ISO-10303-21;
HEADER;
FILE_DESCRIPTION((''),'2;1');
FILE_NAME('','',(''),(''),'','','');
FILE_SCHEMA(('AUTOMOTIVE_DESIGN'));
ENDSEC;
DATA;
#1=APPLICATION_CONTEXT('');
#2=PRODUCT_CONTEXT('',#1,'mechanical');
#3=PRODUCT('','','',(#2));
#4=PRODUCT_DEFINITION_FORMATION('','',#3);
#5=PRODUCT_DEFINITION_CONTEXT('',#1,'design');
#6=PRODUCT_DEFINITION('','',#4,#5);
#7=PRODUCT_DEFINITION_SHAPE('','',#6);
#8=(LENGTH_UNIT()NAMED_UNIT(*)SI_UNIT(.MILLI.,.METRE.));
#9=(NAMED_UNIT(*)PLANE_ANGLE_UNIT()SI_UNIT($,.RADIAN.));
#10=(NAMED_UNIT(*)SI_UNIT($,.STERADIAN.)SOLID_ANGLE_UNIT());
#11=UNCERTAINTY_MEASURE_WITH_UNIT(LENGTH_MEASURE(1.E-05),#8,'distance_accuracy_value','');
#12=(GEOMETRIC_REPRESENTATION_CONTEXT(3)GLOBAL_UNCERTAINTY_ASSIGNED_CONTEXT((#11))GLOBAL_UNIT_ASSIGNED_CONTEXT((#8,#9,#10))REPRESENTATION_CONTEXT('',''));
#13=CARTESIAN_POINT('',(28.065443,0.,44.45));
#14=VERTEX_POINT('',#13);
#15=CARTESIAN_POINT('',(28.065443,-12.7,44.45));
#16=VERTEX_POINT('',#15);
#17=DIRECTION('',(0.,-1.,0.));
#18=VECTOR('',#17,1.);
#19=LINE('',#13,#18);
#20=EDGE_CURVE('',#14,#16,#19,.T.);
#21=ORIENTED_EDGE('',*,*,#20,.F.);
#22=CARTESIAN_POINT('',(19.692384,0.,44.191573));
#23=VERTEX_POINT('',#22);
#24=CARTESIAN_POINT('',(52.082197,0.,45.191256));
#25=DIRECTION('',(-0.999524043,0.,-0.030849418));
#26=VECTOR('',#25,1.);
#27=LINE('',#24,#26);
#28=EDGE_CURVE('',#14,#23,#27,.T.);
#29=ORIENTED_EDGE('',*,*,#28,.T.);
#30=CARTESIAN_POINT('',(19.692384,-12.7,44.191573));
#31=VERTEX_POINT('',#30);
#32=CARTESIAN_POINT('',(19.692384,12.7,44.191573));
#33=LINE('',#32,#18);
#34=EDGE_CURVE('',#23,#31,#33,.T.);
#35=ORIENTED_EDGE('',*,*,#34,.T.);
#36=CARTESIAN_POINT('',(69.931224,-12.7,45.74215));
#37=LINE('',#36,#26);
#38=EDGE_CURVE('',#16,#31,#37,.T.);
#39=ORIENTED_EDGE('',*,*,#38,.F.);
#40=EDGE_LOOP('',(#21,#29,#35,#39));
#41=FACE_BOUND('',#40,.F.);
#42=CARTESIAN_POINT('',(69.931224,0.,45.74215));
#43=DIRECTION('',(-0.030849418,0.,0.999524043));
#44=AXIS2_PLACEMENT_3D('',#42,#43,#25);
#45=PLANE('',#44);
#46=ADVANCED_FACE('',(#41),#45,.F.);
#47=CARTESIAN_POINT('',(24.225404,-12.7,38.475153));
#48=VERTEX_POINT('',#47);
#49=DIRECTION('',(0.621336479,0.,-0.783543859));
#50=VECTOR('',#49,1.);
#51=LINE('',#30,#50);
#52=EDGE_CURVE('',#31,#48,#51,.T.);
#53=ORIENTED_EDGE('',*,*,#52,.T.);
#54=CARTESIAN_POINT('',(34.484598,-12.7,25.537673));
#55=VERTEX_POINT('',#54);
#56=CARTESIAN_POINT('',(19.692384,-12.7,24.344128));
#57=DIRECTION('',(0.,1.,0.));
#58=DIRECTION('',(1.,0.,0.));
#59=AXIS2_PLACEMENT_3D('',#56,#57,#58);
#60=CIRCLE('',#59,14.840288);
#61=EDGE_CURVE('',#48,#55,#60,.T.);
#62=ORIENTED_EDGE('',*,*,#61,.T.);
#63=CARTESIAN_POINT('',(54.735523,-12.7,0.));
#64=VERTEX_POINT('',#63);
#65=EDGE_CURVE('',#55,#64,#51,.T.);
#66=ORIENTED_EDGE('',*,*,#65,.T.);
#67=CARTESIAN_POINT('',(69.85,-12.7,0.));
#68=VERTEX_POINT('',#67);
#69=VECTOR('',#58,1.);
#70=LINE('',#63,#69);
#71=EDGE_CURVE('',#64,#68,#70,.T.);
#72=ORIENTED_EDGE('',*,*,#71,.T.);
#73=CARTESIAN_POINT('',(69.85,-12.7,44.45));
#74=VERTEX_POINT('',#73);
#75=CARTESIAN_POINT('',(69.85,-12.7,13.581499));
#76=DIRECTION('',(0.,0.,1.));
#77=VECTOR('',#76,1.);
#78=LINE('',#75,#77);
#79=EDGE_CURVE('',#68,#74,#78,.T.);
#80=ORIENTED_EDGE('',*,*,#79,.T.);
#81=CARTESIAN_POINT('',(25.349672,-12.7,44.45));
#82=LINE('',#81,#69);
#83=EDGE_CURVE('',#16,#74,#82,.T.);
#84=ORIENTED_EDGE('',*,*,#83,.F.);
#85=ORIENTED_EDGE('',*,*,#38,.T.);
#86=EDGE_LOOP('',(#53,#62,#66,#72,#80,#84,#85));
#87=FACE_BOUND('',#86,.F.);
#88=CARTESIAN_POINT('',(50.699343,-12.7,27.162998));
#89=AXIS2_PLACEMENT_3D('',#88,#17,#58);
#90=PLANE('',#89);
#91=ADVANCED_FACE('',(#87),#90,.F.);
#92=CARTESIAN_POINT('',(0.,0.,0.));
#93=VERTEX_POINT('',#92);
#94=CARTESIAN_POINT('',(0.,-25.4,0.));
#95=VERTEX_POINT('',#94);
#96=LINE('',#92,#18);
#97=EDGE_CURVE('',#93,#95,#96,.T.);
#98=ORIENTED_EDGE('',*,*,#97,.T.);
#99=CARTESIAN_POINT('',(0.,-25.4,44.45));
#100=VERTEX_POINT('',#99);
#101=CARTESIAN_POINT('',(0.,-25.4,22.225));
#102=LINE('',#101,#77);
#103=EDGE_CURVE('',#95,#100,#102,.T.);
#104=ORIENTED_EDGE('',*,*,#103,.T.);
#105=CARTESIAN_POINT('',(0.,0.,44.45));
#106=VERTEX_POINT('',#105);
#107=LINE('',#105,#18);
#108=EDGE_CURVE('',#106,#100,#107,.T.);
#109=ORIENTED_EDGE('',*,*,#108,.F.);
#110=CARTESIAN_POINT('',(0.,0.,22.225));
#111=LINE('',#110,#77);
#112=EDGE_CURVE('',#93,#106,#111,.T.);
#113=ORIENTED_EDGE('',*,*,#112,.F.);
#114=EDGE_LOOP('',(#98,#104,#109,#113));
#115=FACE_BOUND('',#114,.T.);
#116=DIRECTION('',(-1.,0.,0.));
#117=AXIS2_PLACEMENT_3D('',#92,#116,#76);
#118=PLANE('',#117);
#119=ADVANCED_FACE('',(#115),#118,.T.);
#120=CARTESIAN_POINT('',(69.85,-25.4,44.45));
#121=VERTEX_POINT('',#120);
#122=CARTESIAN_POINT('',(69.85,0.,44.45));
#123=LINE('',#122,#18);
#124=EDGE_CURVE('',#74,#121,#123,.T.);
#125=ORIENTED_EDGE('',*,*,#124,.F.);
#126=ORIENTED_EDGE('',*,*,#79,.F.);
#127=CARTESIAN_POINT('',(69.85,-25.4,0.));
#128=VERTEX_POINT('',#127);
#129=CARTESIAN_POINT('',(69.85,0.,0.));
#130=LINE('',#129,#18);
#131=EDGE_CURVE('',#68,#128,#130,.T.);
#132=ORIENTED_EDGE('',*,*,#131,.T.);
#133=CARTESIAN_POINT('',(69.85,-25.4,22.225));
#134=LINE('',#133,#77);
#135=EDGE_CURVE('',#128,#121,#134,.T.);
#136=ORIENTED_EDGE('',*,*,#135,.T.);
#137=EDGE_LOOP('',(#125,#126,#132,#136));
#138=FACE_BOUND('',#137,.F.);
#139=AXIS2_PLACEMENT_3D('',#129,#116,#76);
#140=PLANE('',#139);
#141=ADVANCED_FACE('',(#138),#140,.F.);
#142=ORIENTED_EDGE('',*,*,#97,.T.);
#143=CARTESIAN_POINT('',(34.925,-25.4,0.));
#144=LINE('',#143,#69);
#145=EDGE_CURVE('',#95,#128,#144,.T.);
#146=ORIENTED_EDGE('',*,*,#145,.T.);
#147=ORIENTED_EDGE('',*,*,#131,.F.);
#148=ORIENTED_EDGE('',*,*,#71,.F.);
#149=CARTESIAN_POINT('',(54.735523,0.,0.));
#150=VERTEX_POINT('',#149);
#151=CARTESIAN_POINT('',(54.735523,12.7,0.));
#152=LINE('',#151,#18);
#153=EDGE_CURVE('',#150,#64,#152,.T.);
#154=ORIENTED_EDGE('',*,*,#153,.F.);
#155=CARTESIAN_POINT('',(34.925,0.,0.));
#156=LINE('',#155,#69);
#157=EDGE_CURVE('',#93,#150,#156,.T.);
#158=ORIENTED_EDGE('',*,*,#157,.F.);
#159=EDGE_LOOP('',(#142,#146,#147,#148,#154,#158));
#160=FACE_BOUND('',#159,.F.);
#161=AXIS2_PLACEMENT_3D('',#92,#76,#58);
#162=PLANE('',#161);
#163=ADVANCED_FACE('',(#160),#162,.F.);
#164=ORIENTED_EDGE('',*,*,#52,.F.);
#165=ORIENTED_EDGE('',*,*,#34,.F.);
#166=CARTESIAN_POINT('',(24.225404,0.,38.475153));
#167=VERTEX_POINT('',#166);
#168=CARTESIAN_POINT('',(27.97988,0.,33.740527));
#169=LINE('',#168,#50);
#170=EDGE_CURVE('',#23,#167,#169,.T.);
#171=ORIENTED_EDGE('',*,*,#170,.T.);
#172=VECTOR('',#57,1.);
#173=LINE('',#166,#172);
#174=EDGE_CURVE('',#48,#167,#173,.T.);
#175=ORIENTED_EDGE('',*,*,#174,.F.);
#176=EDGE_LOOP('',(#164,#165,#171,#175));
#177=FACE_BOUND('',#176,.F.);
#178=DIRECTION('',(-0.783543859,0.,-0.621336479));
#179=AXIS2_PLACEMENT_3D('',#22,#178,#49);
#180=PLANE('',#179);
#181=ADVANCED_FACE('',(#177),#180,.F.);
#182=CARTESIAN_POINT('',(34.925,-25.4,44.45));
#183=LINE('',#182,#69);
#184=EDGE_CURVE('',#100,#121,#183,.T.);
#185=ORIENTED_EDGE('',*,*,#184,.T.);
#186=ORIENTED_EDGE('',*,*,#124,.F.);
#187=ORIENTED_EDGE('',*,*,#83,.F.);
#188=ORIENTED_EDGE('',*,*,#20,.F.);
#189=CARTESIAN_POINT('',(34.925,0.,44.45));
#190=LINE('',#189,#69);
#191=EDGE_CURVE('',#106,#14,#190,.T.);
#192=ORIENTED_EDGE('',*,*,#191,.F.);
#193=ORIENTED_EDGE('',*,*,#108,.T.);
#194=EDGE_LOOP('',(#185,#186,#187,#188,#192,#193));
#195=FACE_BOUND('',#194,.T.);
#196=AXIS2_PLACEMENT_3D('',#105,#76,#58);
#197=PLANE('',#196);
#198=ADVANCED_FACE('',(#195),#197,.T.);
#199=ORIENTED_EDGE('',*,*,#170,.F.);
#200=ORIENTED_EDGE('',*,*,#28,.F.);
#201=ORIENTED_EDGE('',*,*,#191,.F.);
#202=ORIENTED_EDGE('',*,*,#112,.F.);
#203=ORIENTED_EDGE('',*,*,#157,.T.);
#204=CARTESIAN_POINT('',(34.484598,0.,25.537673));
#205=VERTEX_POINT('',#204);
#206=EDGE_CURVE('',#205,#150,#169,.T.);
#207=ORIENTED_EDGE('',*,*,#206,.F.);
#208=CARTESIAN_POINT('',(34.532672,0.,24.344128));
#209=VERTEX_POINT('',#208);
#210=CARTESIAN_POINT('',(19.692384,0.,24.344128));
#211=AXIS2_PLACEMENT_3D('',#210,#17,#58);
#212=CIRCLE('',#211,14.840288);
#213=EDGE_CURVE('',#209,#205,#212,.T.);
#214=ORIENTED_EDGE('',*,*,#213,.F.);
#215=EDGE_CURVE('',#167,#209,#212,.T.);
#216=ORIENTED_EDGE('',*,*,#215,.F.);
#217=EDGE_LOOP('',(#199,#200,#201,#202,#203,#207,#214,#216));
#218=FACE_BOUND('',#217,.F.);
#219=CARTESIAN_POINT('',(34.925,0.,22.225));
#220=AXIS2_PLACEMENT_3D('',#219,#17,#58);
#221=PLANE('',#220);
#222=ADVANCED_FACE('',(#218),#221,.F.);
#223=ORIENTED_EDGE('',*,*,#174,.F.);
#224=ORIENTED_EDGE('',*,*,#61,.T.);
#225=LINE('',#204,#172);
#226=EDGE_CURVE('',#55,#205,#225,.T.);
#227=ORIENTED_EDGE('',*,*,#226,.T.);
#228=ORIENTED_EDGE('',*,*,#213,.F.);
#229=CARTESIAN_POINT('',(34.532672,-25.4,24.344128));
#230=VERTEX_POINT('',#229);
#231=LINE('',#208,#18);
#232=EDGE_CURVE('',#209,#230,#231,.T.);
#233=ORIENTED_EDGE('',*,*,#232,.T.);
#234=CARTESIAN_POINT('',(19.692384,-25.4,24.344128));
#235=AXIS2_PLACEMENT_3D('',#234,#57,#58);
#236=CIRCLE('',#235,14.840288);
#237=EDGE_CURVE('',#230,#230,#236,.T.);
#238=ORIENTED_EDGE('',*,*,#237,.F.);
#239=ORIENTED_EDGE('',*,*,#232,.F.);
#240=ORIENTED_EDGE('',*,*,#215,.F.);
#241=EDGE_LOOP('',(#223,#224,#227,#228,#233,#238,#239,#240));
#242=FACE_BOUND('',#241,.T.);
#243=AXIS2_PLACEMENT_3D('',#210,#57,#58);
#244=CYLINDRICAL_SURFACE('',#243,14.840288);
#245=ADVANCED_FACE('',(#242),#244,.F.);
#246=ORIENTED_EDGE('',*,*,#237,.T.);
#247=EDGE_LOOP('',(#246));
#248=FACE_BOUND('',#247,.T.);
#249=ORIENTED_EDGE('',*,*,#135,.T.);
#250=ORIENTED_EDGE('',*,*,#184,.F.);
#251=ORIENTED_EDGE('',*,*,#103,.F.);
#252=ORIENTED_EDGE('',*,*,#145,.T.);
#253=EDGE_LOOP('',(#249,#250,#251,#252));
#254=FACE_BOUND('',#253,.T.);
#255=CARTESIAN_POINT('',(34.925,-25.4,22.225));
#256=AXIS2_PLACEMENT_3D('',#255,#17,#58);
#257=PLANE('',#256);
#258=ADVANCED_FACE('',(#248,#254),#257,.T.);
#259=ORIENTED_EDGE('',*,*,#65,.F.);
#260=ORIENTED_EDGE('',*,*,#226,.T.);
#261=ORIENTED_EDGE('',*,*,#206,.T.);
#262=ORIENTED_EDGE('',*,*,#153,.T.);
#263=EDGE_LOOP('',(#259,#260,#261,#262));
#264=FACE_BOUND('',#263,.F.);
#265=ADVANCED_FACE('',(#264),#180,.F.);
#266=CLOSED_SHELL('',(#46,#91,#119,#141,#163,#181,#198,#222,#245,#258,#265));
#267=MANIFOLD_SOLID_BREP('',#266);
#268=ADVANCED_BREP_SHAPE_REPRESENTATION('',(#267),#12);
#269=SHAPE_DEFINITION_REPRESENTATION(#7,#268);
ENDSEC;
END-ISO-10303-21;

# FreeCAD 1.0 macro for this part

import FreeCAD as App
import Part
import Sketcher
Q = App.Units.Quantity


def add_polygon(sketch, points):
    """Adds a closed chain of lines whose ends are joined by coincident constraints."""
    first, n = sketch.GeometryCount, len(points)
    for a, b in zip(points, points[1:] + points[:1]):
        sketch.addGeometry(Part.LineSegment(App.Vector(*a, 0), App.Vector(*b, 0)), False)
    for i in range(n):
        sketch.addConstraint(Sketcher.Constraint("Coincident", first + i, 2, first + (i + 1) % n, 1))

doc = App.newDocument("Part")
body = doc.addObject("PartDesign::Body", "Body")

sketch1 = doc.addObject("Sketcher::SketchObject", "Sketch")
body.addObject(sketch1)
sketch1.AttachmentSupport = (doc.XZ_Plane, [""])
sketch1.MapMode = "FlatFace"
add_polygon(sketch1, [(0, 44), (0, 0), (70, 0), (70, 44)])
sketch1.addConstraint([
    Sketcher.Constraint("Vertical", 0),
    Sketcher.Constraint("Horizontal", 1),
    Sketcher.Constraint("Vertical", 2),
    Sketcher.Constraint("Horizontal", 3),
    Sketcher.Constraint("Coincident", 0, 2, -1, 1),
    Sketcher.Constraint("DistanceX", 1, 1, 1, 2, Q("2.75 in")),
    Sketcher.Constraint("DistanceY", 0, 2, 0, 1, Q("1.75 in")),
])
pad1 = doc.addObject("PartDesign::Pad", "Pad")
body.addObject(pad1)
pad1.Profile = sketch1
pad1.Length = Q("1 in")

sketch2 = doc.addObject("Sketcher::SketchObject", "Sketch001")
body.addObject(sketch2)
sketch2.AttachmentSupport = (doc.XZ_Plane, [""])
sketch2.MapMode = "FlatFace"
add_polygon(sketch2, [(70, 46), (20, 44), (55, 0), (70, 0)])
sketch2.addConstraint([
    Sketcher.Constraint("Horizontal", 2),
    Sketcher.Constraint("Vertical", 3),
    Sketcher.Constraint("PointOnObject", 1, 2, -1),
    Sketcher.Constraint("DistanceX", 2, 1, 2, 2, Q("15.195701 mm")),
    Sketcher.Constraint("DistanceY", 3, 1, 3, 2, Q("45.74215 mm")),
    Sketcher.Constraint("DistanceX", 0, 2, 1, 2, Q("35.043139 mm")),
    Sketcher.Constraint("Distance", 0, Q("50.262763 mm")),
    Sketcher.Constraint("DistanceX", -1, 1, 0, 2, Q("19.692384 mm")),
])
pocket1 = doc.addObject("PartDesign::Pocket", "Pocket")
body.addObject(pocket1)
pocket1.Profile = sketch2
pocket1.Length = Q("1 in")
pocket1.Midplane = True

sketch3 = doc.addObject("Sketcher::SketchObject", "Sketch002")
body.addObject(sketch3)
sketch3.AttachmentSupport = (doc.XZ_Plane, [""])
sketch3.MapMode = "FlatFace"
sketch3.addGeometry(Part.Circle(App.Vector(20, 24, 0), App.Vector(0, 0, 1), 15), False)
sketch3.addConstraint([
    Sketcher.Constraint("Diameter", 0, Q("29.680576 mm")),
    Sketcher.Constraint("DistanceY", -1, 1, 0, 3, Q("24.344128 mm")),
    Sketcher.Constraint("DistanceX", -1, 1, 0, 3, Q("19.692384 mm")),
])
pocket2 = doc.addObject("PartDesign::Pocket", "Pocket001")
body.addObject(pocket2)
pocket2.Profile = sketch3
pocket2.Type = "ThroughAll"
pocket2.Reversed = True

doc.recompute()
